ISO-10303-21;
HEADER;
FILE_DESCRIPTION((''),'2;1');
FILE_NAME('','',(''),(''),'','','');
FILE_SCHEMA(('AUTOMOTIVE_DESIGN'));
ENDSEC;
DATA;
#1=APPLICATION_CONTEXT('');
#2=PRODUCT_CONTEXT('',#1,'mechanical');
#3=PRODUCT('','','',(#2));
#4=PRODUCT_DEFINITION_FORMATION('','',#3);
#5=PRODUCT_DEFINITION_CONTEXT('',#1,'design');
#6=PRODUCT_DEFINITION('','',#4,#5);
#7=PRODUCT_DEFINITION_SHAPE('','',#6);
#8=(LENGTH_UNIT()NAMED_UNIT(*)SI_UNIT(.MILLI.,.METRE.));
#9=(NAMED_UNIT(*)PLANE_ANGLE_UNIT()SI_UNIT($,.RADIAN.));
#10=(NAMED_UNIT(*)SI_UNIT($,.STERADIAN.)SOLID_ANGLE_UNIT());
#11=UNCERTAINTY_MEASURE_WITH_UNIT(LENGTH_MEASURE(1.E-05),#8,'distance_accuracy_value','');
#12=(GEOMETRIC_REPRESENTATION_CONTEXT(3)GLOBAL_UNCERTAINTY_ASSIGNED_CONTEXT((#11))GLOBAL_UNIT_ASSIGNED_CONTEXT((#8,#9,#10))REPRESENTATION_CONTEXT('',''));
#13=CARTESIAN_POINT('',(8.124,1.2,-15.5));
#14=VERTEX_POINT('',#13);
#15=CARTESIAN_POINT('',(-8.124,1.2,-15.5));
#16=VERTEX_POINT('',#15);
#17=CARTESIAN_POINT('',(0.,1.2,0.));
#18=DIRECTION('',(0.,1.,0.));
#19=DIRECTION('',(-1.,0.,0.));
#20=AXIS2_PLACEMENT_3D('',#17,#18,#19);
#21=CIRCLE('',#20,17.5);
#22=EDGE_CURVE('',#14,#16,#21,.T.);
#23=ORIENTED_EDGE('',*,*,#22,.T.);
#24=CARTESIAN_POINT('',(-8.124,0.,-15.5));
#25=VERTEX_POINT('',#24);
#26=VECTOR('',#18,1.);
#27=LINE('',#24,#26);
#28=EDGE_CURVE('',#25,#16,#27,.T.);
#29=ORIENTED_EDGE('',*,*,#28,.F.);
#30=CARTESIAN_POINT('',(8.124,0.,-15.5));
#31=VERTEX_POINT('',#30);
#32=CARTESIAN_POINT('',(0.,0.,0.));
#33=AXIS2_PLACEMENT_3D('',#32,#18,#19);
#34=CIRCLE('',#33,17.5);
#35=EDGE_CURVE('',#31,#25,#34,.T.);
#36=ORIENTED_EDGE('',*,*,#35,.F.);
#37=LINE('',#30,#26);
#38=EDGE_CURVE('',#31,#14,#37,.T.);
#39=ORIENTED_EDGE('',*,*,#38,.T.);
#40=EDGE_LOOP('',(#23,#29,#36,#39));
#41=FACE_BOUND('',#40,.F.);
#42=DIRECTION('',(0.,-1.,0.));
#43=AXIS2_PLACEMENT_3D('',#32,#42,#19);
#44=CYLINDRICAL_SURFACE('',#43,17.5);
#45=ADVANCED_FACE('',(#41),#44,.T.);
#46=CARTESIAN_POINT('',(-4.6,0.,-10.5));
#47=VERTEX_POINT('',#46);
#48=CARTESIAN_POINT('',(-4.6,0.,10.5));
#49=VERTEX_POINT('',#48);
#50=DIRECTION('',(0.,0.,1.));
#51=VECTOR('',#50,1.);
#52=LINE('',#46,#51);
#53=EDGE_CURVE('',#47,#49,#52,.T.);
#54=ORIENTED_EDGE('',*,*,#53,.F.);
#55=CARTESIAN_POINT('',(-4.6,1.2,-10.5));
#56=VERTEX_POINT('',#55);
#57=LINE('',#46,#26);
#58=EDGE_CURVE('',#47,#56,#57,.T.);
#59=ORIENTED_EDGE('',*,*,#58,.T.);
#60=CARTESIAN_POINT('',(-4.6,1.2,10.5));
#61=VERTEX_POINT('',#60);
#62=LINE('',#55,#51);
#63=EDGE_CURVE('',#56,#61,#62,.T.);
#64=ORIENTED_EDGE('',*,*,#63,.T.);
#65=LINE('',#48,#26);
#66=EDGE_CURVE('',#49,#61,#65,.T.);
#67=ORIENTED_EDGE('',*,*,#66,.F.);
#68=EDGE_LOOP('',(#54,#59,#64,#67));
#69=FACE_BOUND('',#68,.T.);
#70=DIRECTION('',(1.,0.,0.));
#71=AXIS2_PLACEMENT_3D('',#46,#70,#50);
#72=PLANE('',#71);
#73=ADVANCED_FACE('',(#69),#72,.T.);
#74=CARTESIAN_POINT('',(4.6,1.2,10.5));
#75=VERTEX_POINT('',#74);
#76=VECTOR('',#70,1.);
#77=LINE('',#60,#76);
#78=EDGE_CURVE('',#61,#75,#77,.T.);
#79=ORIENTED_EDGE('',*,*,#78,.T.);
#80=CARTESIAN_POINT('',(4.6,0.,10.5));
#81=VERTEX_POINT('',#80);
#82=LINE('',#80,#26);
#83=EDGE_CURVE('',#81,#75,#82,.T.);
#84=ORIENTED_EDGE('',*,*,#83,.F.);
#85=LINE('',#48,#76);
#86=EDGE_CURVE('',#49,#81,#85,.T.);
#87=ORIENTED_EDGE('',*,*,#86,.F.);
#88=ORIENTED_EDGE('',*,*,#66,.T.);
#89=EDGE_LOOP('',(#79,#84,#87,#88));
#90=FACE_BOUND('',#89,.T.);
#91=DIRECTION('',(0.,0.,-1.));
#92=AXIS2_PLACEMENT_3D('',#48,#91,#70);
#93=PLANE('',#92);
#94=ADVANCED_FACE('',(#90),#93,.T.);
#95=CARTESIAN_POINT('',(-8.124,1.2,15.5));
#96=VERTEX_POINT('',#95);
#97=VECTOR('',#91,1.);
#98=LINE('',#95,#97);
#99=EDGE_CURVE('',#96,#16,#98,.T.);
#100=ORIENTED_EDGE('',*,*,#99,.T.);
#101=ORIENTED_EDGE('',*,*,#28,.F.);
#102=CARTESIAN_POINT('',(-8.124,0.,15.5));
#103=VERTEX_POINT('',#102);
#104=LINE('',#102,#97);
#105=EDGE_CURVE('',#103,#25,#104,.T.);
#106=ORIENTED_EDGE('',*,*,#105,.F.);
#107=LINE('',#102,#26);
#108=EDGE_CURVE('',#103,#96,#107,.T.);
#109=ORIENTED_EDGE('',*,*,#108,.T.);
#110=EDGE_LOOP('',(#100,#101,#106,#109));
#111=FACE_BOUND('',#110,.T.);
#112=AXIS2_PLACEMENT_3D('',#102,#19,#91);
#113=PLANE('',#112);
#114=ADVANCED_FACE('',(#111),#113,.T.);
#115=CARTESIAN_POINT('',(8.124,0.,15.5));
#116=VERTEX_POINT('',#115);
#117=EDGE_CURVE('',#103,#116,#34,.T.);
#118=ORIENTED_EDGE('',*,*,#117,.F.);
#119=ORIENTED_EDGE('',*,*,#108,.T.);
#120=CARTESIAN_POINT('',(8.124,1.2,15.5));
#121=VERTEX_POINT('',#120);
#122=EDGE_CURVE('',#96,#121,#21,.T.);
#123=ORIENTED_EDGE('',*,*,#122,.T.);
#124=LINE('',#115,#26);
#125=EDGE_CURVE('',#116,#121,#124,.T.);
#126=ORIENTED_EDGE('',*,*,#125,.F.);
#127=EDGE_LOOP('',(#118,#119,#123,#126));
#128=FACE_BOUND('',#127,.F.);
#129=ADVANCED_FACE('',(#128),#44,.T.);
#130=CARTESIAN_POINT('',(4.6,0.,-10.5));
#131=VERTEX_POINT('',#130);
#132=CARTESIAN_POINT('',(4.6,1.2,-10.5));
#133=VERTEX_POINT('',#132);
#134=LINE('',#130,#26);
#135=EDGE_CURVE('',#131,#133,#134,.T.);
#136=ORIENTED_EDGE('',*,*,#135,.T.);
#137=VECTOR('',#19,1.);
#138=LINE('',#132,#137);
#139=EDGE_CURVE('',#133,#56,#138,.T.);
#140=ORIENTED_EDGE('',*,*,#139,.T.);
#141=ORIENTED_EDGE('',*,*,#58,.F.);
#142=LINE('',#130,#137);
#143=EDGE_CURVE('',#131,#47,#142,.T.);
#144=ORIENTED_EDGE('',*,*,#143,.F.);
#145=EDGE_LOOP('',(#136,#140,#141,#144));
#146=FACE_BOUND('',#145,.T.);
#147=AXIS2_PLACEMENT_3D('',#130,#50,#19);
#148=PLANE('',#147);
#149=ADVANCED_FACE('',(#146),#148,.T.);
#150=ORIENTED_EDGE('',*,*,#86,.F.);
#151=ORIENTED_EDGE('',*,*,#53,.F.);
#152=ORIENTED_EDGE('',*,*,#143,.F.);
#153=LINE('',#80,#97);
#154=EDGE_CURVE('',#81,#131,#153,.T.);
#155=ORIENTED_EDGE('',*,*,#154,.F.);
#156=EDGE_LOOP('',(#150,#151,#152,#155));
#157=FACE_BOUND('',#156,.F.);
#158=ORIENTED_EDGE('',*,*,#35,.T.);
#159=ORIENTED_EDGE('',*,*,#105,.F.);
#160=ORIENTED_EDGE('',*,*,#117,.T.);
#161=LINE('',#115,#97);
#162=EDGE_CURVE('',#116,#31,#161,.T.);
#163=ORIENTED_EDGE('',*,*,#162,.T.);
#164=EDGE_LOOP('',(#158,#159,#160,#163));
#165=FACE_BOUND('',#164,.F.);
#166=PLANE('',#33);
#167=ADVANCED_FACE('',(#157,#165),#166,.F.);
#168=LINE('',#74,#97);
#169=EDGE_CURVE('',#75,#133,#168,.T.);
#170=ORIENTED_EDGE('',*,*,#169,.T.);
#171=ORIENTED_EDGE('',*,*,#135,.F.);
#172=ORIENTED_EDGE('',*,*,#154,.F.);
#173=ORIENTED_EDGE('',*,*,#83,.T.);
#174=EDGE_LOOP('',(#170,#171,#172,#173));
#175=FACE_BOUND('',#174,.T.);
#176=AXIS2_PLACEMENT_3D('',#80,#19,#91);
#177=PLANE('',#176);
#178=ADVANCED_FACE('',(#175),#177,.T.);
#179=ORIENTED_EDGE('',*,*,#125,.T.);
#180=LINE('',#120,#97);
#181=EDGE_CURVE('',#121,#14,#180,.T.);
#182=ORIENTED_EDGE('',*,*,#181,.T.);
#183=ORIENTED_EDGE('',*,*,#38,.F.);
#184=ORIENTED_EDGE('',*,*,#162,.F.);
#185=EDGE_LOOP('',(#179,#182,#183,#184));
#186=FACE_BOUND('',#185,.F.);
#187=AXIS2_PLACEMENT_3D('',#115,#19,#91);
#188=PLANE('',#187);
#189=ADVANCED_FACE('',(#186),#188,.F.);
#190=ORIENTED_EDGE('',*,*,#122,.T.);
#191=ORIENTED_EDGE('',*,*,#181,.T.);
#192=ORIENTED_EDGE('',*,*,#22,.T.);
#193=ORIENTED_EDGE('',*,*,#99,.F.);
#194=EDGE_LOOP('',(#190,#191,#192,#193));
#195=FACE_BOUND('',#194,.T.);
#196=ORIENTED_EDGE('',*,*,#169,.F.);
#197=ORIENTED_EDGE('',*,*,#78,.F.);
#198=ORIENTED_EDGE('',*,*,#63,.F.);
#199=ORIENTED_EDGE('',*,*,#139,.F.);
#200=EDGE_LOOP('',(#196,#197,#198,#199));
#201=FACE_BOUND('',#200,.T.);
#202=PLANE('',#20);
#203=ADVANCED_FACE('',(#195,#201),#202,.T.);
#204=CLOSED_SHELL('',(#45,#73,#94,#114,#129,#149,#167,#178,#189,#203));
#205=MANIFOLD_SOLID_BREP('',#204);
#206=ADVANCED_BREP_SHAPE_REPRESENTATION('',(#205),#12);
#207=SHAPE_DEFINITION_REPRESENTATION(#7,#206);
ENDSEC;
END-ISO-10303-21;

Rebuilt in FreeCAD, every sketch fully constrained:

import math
import FreeCAD as App
import Part
import Sketcher
from FreeCAD import Vector
Q = App.Units.Quantity


def add_polygon(sketch, points):
    """Adds a closed chain of lines whose ends are joined by coincident constraints."""
    first, n = sketch.GeometryCount, len(points)
    for a, b in zip(points, points[1:] + points[:1]):
        sketch.addGeometry(Part.LineSegment(App.Vector(*a, 0), App.Vector(*b, 0)), False)
    for i in range(n):
        sketch.addConstraint(Sketcher.Constraint("Coincident", first + i, 2, first + (i + 1) % n, 1))

doc = App.newDocument("Part")
body = doc.addObject("PartDesign::Body", "Body")

# Sketch on XZ plane
sketch1 = body.newObject("Sketcher::SketchObject", "Sketch")
sketch1.AttachmentSupport = (doc.getObject("XZ_Plane"), [""])
sketch1.MapMode = "FlatFace"
sketch1.addGeometry(Part.LineSegment(Vector(-8.124, -15.5, 0), Vector(-8.124, 15.5, 0)), False)  # 0
sketch1.addGeometry(Part.ArcOfCircle(Part.Circle(Vector(0, 0, 0), Vector(0, 0, 1), 17.5), math.radians(62.339661), math.radians(117.660339)), False)  # 1
sketch1.addGeometry(Part.LineSegment(Vector(8.124, 15.5, 0), Vector(8.124, -15.5, 0)), False)  # 2
sketch1.addGeometry(Part.ArcOfCircle(Part.Circle(Vector(0, 0, 0), Vector(0, 0, 1), 17.5), math.radians(-117.660339), math.radians(-62.339661)), False)  # 3
add_polygon(sketch1, [(4.6, 10.5), (-4.6, 10.5), (-4.6, -10.5), (4.6, -10.5)])  # lines 4-7
sketch1.addConstraint([
    Sketcher.Constraint("Coincident", 0, 2, 1, 2),
    Sketcher.Constraint("Coincident", 1, 1, 2, 1),
    Sketcher.Constraint("Coincident", 2, 2, 3, 2),
    Sketcher.Constraint("Coincident", 3, 1, 0, 1),
    Sketcher.Constraint("Vertical", 0),
    Sketcher.Constraint("Vertical", 2),
    Sketcher.Constraint("Horizontal", 4),
    Sketcher.Constraint("Vertical", 5),
    Sketcher.Constraint("Horizontal", 6),
    Sketcher.Constraint("Vertical", 7),
    Sketcher.Constraint("Coincident", 1, 3, -1, 1),
    Sketcher.Constraint("Coincident", 3, 3, -1, 1),
    Sketcher.Constraint("Equal", 1, 3),
    Sketcher.Constraint("Symmetric", 4, 2, 6, 2, -1, 1),
    Sketcher.Constraint("Horizontal", 0, 2, 1, 1),
    Sketcher.Constraint("Radius", 1, Q("17.5 mm")),
    Sketcher.Constraint("DistanceY", 0, 1, 0, 2, Q("31 mm")),
    Sketcher.Constraint("DistanceY", 5, 2, 5, 1, Q("21 mm")),
    Sketcher.Constraint("DistanceX", 4, 2, 4, 1, Q("9.2 mm")),
])
pad1 = body.newObject("PartDesign::Pad", "Pad")
pad1.Profile = sketch1
pad1.Length = 1.2
pad1.Reversed = True

doc.recompute()
